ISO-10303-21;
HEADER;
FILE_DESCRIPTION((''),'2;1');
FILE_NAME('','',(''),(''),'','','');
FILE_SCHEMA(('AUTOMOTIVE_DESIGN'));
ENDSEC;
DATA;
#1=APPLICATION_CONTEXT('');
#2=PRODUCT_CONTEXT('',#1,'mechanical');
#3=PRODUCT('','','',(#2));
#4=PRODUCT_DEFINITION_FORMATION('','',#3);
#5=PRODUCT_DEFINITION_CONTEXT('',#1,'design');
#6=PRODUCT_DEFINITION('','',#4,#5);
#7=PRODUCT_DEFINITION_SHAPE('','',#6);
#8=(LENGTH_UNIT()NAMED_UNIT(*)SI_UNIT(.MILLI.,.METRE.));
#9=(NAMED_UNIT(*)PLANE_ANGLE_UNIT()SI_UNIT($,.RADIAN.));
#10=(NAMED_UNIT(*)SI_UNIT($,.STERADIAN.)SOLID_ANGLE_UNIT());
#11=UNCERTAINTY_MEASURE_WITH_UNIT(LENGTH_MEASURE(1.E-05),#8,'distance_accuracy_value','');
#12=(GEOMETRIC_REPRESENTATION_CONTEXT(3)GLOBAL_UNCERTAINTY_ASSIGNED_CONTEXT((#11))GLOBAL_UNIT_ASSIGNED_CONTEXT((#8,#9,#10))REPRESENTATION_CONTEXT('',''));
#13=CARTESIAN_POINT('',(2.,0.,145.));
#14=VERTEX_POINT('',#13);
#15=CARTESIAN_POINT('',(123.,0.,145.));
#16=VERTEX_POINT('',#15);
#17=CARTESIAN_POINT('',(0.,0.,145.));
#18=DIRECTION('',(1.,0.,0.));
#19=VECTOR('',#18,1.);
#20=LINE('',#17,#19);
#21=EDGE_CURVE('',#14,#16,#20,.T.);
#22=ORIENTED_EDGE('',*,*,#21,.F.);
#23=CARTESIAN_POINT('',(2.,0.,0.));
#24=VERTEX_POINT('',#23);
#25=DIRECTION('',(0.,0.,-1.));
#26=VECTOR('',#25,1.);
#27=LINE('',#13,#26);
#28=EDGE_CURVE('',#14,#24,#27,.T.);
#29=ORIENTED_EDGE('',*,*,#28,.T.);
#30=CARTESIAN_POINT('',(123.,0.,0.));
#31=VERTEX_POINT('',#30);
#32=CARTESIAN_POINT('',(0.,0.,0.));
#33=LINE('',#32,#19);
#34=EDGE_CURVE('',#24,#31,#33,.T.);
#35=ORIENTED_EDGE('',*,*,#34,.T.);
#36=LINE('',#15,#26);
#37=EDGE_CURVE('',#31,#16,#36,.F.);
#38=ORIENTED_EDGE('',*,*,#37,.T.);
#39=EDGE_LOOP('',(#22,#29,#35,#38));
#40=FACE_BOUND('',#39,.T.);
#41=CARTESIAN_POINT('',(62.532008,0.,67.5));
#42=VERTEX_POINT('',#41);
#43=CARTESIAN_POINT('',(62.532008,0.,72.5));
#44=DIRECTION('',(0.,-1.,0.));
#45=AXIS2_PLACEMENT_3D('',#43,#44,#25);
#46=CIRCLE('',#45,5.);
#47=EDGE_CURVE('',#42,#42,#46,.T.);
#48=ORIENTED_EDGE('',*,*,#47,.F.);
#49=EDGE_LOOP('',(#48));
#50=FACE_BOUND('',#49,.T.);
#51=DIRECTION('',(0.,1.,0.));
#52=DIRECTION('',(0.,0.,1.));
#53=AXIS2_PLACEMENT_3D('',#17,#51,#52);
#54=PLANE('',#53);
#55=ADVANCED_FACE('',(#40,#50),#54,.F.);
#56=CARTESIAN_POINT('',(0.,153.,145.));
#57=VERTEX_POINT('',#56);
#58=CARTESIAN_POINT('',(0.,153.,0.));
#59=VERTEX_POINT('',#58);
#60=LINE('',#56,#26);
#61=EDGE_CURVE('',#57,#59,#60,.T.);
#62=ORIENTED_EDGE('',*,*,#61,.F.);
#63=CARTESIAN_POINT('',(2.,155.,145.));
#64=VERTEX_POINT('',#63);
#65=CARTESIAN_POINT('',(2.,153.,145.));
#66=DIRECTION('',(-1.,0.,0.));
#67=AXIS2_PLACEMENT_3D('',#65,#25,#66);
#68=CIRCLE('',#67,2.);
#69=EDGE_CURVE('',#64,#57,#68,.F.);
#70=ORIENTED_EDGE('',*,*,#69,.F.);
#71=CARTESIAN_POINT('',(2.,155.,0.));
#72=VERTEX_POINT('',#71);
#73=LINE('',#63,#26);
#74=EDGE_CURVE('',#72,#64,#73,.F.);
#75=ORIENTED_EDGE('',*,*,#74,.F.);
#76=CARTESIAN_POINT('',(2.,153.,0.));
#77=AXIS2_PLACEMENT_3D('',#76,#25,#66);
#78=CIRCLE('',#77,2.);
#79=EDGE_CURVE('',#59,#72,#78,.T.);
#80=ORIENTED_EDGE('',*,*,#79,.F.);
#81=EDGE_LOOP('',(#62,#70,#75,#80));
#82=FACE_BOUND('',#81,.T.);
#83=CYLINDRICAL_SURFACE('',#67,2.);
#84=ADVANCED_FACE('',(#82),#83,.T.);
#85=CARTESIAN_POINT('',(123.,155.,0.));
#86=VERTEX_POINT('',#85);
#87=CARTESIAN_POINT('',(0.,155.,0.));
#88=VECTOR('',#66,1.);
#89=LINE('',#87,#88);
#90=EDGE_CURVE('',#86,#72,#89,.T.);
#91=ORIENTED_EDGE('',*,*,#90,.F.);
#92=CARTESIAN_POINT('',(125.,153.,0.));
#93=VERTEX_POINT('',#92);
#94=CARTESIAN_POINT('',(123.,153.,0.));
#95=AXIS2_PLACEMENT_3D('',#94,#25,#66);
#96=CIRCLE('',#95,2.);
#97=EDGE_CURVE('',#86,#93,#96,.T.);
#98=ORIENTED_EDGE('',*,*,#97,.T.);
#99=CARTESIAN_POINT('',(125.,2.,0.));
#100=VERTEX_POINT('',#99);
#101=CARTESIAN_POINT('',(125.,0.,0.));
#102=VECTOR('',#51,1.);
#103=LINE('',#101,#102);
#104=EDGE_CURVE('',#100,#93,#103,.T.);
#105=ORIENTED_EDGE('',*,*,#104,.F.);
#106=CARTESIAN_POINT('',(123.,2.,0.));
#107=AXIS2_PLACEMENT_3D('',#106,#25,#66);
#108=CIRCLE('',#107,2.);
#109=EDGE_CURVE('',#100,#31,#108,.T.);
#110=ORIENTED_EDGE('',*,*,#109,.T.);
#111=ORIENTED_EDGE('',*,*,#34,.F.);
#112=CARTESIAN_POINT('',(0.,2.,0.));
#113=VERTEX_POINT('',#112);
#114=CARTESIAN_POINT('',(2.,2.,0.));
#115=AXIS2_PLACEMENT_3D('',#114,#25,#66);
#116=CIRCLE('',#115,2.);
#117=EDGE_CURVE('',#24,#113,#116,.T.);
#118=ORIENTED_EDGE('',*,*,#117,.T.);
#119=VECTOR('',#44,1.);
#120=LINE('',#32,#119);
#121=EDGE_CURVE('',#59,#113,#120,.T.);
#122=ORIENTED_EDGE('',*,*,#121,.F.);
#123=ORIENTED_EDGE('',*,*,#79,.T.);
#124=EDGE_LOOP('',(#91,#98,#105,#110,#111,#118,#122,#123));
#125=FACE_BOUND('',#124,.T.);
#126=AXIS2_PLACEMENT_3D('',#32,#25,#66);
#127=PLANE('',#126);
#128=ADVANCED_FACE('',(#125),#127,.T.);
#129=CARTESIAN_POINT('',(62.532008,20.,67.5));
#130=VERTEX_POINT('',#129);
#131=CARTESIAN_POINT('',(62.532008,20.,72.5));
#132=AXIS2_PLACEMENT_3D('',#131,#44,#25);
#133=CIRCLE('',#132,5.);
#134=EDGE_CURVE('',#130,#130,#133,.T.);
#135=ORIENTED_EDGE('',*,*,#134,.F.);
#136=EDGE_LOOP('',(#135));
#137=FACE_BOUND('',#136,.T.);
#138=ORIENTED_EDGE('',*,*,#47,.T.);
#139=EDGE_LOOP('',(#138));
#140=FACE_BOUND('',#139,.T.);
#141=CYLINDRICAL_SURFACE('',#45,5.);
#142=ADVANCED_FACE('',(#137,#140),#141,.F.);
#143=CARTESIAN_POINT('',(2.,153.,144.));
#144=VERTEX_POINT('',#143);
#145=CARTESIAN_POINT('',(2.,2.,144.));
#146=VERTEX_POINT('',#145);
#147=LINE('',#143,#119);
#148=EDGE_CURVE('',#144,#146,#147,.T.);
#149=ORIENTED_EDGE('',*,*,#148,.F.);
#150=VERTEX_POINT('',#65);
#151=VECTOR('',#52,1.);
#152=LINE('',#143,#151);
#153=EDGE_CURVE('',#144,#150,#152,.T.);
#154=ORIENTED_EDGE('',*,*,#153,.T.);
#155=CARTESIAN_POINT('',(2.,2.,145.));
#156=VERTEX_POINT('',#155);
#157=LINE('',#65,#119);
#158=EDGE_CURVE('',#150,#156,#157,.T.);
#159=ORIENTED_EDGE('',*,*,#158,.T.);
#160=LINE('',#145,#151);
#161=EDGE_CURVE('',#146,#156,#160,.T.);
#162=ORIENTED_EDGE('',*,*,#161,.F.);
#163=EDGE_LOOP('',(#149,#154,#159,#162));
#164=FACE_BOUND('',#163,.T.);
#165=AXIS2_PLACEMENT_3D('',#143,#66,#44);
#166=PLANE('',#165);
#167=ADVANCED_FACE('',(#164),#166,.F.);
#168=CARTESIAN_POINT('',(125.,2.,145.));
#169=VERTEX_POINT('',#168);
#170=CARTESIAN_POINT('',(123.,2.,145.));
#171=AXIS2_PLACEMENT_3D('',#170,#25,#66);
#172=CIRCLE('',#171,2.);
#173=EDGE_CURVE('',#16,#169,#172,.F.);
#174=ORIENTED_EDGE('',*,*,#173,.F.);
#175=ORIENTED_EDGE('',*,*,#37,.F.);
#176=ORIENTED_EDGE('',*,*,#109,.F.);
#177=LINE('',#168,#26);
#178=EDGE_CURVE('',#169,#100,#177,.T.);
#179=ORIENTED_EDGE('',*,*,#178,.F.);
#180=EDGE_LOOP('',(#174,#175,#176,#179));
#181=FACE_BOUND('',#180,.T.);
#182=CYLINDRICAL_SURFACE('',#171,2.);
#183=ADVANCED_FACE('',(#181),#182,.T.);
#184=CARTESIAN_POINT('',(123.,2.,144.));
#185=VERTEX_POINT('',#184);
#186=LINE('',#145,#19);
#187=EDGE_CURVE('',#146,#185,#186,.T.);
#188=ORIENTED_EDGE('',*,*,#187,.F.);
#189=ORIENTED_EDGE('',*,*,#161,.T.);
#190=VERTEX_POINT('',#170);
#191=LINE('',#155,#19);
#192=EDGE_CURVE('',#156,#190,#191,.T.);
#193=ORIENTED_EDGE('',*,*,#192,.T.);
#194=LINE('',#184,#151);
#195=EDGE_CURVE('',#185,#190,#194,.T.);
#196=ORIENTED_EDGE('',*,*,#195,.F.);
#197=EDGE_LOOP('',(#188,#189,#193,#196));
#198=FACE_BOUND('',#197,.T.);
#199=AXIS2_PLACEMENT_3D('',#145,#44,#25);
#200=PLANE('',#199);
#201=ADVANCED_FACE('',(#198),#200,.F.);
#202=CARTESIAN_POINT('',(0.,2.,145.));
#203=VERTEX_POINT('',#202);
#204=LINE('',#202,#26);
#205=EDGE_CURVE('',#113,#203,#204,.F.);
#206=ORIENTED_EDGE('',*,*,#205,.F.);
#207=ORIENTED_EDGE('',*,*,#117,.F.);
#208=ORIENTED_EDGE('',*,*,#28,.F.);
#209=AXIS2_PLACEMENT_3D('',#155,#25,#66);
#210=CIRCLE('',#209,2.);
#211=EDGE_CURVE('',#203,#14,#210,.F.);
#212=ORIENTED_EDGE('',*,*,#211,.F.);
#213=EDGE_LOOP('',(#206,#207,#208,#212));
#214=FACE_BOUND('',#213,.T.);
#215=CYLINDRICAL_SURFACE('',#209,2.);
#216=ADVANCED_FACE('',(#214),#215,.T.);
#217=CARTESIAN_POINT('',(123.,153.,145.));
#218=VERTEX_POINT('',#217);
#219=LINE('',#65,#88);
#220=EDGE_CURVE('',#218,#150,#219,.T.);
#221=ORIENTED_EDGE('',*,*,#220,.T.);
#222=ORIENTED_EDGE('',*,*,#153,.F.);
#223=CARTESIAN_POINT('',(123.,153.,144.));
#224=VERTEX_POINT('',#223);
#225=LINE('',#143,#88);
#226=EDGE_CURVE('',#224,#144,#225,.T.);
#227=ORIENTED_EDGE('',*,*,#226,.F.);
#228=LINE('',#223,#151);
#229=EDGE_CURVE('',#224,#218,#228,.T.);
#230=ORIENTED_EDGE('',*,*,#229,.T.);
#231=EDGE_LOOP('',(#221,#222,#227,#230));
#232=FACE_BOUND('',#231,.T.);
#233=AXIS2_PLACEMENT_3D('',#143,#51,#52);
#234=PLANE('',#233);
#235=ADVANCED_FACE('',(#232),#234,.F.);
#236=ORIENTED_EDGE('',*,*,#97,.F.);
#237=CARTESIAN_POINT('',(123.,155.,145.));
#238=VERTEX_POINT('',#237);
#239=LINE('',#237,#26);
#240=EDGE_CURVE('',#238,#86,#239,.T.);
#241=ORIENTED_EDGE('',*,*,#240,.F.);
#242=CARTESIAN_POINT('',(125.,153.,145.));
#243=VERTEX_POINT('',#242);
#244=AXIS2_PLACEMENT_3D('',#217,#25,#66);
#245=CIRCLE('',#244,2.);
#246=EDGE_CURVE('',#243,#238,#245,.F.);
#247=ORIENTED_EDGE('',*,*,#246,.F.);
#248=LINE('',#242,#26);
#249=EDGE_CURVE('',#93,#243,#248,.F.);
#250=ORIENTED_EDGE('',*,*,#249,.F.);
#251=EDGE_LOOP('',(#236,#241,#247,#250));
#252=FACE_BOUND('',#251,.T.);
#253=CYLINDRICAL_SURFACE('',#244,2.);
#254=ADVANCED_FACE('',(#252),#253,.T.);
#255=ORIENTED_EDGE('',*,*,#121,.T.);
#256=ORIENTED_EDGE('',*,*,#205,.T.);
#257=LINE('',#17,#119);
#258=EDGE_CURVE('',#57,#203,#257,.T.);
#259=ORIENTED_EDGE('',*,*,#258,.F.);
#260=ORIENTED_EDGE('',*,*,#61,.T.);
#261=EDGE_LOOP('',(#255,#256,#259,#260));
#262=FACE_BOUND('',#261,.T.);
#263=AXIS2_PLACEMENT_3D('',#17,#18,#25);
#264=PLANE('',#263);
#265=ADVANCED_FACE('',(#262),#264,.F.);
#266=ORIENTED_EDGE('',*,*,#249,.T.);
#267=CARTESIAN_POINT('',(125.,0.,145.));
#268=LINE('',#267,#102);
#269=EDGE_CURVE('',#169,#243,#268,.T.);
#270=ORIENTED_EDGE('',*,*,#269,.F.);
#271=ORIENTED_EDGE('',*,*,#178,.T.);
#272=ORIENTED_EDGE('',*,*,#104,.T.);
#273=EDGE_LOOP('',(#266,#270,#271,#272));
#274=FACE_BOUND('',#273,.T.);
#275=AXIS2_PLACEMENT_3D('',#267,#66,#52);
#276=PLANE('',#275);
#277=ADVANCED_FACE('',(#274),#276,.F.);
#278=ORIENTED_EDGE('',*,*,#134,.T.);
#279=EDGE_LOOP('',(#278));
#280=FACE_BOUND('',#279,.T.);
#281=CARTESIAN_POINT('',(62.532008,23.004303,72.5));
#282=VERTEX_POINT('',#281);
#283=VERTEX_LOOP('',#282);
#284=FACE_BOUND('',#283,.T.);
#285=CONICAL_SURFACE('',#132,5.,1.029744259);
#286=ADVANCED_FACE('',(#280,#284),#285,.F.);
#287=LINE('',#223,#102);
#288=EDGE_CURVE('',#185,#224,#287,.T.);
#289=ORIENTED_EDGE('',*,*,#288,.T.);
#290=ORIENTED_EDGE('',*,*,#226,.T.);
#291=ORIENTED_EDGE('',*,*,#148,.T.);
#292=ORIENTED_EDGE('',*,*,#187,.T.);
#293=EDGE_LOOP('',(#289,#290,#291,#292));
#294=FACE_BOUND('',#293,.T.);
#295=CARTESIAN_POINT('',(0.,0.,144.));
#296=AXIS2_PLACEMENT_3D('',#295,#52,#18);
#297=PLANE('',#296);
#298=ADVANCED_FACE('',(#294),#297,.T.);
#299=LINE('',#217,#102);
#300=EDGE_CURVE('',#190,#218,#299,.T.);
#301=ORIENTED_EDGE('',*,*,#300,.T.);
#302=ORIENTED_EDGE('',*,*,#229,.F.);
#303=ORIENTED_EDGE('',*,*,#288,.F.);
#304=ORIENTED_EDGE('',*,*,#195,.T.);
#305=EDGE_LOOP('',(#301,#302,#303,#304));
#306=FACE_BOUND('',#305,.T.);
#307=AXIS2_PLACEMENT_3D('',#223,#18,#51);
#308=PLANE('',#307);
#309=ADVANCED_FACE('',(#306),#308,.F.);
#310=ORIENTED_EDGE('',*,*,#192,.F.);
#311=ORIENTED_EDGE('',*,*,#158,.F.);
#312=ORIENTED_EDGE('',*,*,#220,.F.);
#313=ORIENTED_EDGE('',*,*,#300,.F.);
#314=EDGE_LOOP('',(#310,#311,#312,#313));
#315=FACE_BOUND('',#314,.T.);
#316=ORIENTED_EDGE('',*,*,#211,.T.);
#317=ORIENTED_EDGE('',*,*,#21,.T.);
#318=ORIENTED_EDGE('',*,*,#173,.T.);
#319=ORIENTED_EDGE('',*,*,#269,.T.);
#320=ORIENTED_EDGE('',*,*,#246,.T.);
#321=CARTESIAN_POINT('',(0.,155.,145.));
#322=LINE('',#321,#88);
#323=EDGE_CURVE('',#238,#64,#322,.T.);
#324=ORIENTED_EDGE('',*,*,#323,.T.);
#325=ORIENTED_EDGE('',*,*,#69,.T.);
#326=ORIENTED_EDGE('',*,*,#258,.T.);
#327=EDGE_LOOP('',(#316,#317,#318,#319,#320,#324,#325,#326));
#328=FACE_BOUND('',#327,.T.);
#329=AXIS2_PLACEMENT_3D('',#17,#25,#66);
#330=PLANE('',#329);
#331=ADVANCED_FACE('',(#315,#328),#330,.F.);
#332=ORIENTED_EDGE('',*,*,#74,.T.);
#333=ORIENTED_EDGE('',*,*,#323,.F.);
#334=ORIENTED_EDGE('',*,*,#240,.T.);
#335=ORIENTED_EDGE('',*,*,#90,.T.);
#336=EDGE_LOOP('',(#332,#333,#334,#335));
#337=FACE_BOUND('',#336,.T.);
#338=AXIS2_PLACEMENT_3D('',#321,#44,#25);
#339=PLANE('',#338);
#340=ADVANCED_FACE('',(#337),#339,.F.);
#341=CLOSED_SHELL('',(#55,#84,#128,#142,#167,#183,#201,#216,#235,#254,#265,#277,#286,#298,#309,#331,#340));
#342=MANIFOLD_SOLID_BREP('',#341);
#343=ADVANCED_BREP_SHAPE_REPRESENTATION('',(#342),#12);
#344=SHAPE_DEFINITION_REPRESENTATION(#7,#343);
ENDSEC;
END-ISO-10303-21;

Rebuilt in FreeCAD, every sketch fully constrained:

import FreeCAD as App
import Part
import Sketcher
Q = App.Units.Quantity


def edges_at(feature, points):
    """Names of the edges that pass closest to the given points."""
    edges = feature.Shape.Edges
    near = lambda p: min(range(len(edges)), key=lambda i: edges[i].distToShape(Part.Vertex(*p))[0])
    return sorted({f"Edge{near(p) + 1}" for p in points})

doc = App.newDocument("Part")
body = doc.addObject("PartDesign::Body", "Body")

# Sketch on XY plane
sketch1 = body.newObject("Sketcher::SketchObject", "Sketch")
sketch1.AttachmentSupport = (doc.getObject("XY_Plane"), [""])
sketch1.MapMode = "FlatFace"
sketch1.addGeometry(Part.LineSegment(App.Vector(0, 155, 0), App.Vector(0, 0, 0)), False)
sketch1.addGeometry(Part.LineSegment(App.Vector(0, 0, 0), App.Vector(125, 0, 0)), False)
sketch1.addGeometry(Part.LineSegment(App.Vector(125, 0, 0), App.Vector(125, 155, 0)), False)
sketch1.addGeometry(Part.LineSegment(App.Vector(125, 155, 0), App.Vector(0, 155, 0)), False)
sketch1.addConstraint(Sketcher.Constraint("Coincident", 0, 2, 1, 1))
sketch1.addConstraint(Sketcher.Constraint("Coincident", 1, 2, 2, 1))
sketch1.addConstraint(Sketcher.Constraint("Coincident", 2, 2, 3, 1))
sketch1.addConstraint(Sketcher.Constraint("Coincident", 3, 2, 0, 1))
sketch1.addConstraint(Sketcher.Constraint("Vertical", 0))
sketch1.addConstraint(Sketcher.Constraint("Horizontal", 1))
sketch1.addConstraint(Sketcher.Constraint("Vertical", 2))
sketch1.addConstraint(Sketcher.Constraint("Horizontal", 3))
sketch1.addConstraint(Sketcher.Constraint("Coincident", 0, 2, -1, 1))
sketch1.addConstraint(Sketcher.Constraint("DistanceX", 1, 1, 1, 2, Q("125 mm")))
sketch1.addConstraint(Sketcher.Constraint("DistanceY", 0, 2, 0, 1, Q("155 mm")))
pad1 = body.newObject("PartDesign::Pad", "Pad")
pad1.Profile = sketch1
pad1.Length = 145

# Sketch on XY plane
sketch2 = body.newObject("Sketcher::SketchObject", "Sketch001")
sketch2.AttachmentSupport = (doc.getObject("XY_Plane"), [""])
sketch2.MapMode = "FlatFace"
sketch2.AttachmentOffset = App.Placement(App.Vector(0, 0, 145), App.Rotation())
sketch2.addGeometry(Part.LineSegment(App.Vector(2, 153, 0), App.Vector(2, 2, 0)), False)
sketch2.addGeometry(Part.LineSegment(App.Vector(2, 2, 0), App.Vector(123, 2, 0)), False)
sketch2.addGeometry(Part.LineSegment(App.Vector(123, 2, 0), App.Vector(123, 153, 0)), False)
sketch2.addGeometry(Part.LineSegment(App.Vector(123, 153, 0), App.Vector(2, 153, 0)), False)
sketch2.addConstraint(Sketcher.Constraint("Coincident", 0, 2, 1, 1))
sketch2.addConstraint(Sketcher.Constraint("Coincident", 1, 2, 2, 1))
sketch2.addConstraint(Sketcher.Constraint("Coincident", 2, 2, 3, 1))
sketch2.addConstraint(Sketcher.Constraint("Coincident", 3, 2, 0, 1))
sketch2.addConstraint(Sketcher.Constraint("Vertical", 0))
sketch2.addConstraint(Sketcher.Constraint("Horizontal", 1))
sketch2.addConstraint(Sketcher.Constraint("Vertical", 2))
sketch2.addConstraint(Sketcher.Constraint("Horizontal", 3))
sketch2.addConstraint(Sketcher.Constraint("DistanceX", 1, 1, 1, 2, Q("121 mm")))
sketch2.addConstraint(Sketcher.Constraint("DistanceY", 0, 2, 0, 1, Q("151 mm")))
sketch2.addConstraint(Sketcher.Constraint("DistanceX", -1, 1, 0, 2, Q("2 mm")))
sketch2.addConstraint(Sketcher.Constraint("DistanceY", -1, 1, 0, 2, Q("2 mm")))
pocket1 = body.newObject("PartDesign::Pocket", "Pocket")
pocket1.Profile = sketch2
pocket1.Length = 1
doc.recompute()

fillet = body.newObject("PartDesign::Fillet", "Fillet")
fillet.Base = (pocket1, edges_at(pocket1, [(0, 155, 72.5), (125, 155, 72.5), (0, 0, 72.5)]))
fillet.Radius = 2
doc.recompute()

fillet2 = body.newObject("PartDesign::Fillet", "Fillet001")
fillet2.Base = (fillet, edges_at(fillet, [(125, 0, 72.5)]))
fillet2.Radius = 2

# Sketch on XZ plane
sketch3 = body.newObject("Sketcher::SketchObject", "Sketch002")
sketch3.AttachmentSupport = (doc.getObject("XZ_Plane"), [""])
sketch3.MapMode = "FlatFace"
sketch3.addGeometry(Part.Circle(App.Vector(62.532008, 72.5, 0), App.Vector(0, 0, 1), 5), False)
sketch3.addConstraint(Sketcher.Constraint("Diameter", 0, Q("10 mm")))
sketch3.addConstraint(Sketcher.Constraint("DistanceY", -1, 1, 0, 3, Q("72.5 mm")))
sketch3.addConstraint(Sketcher.Constraint("DistanceX", -1, 1, 0, 3, Q("62.532008 mm")))
doc.recompute()
hole = body.newObject("PartDesign::Hole", "Hole")
hole.Profile = sketch3
hole.ThreadType = "None"
hole.Diameter = 10
hole.DepthType = "Dimension"
hole.Depth = 20
hole.DrillPoint = "Angled"
hole.DrillPointAngle = 118

doc.recompute()
